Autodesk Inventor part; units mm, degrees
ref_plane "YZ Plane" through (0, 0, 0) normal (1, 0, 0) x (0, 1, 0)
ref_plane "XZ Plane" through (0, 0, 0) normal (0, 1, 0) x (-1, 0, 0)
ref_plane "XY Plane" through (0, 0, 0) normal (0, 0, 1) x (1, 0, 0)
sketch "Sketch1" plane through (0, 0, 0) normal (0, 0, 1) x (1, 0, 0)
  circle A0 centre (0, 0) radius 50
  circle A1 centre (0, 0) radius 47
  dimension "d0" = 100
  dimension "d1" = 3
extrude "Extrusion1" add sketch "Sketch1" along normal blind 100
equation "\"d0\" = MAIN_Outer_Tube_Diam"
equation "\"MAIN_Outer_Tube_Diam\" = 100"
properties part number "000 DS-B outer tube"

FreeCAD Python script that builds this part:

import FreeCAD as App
import Part
import Sketcher

V = App.Vector
Q = App.Units.Quantity

doc = App.newDocument("Part")
params = doc.addObject("Spreadsheet::Sheet", "Params")
for row, (alias, value) in enumerate([
    ("sketch1_diameter", "100 mm"),
    ("sketch1_diameter2", "94 mm"),
    ("pad1_length", "100 mm"),
], start=1):
    params.set(f"A{row}", alias)
    params.set(f"B{row}", "=" + value)
    params.setAlias(f"B{row}", alias)

body = doc.addObject("PartDesign::Body", "Body")

sketch1 = body.newObject("Sketcher::SketchObject", "Sketch")
sketch1.AttachmentSupport = (doc.getObject("XY_Plane"), [""])
sketch1.MapMode = "FlatFace"
sketch1.addGeometry(Part.Circle(V(0, 0, 0), V(0, 0, 1), 50), False)
sketch1.addGeometry(Part.Circle(V(0, 0, 0), V(0, 0, 1), 47), False)
sketch1.addConstraint(Sketcher.Constraint("Coincident", 0, 3, -1, 1))
sketch1.addConstraint(Sketcher.Constraint("Coincident", 1, 3, -1, 1))
sketch1.addConstraint(Sketcher.Constraint("Diameter", 0, Q("100 mm")))
sketch1.addConstraint(Sketcher.Constraint("Diameter", 1, Q("94 mm")))
sketch1.setExpression("Constraints[2]", "Params.sketch1_diameter")
sketch1.setExpression("Constraints[3]", "Params.sketch1_diameter2")
pad1 = body.newObject("PartDesign::Pad", "Pad")
pad1.Profile = sketch1
pad1.setExpression("Length", "Params.pad1_length")

doc.recompute()
